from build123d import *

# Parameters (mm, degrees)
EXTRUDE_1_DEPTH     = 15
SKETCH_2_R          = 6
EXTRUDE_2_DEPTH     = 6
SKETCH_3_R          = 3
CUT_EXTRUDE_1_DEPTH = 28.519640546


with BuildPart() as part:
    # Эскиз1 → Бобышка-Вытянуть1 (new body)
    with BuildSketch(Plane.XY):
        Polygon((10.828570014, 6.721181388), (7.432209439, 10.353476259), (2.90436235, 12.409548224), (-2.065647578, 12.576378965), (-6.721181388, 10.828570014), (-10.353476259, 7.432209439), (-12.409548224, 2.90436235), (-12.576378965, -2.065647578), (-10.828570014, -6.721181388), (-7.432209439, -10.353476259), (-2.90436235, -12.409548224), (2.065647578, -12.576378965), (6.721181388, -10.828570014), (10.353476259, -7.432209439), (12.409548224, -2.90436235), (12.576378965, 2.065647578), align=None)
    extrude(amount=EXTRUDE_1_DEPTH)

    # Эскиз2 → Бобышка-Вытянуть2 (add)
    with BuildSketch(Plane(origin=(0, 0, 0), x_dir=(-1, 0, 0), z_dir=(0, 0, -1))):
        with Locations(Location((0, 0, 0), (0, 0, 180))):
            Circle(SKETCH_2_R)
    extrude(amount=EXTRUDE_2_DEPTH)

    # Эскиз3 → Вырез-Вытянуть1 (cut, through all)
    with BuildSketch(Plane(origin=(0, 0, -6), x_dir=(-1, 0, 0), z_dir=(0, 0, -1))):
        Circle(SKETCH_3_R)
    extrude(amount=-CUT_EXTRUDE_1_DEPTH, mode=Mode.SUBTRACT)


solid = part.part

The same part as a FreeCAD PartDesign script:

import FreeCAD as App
import Part
import Sketcher
from FreeCAD import Vector
Q = App.Units.Quantity

doc = App.newDocument("Part")
body = doc.addObject("PartDesign::Body", "Body")

# Sketch on XY plane
sketch1 = body.newObject("Sketcher::SketchObject", "Sketch")
sketch1.AttachmentSupport = (doc.getObject("XY_Plane"), [""])
sketch1.MapMode = "FlatFace"
sketch1.addGeometry(Part.LineSegment(Vector(10.8, 6.7, 0), Vector(7.4, 10.4, 0)), False)
sketch1.addGeometry(Part.LineSegment(Vector(7.4, 10.4, 0), Vector(2.9, 12.4, 0)), False)
sketch1.addGeometry(Part.LineSegment(Vector(2.9, 12.4, 0), Vector(-2.1, 12.6, 0)), False)
sketch1.addGeometry(Part.LineSegment(Vector(-2.1, 12.6, 0), Vector(-6.7, 10.8, 0)), False)
sketch1.addGeometry(Part.LineSegment(Vector(-6.7, 10.8, 0), Vector(-10.4, 7.4, 0)), False)
sketch1.addGeometry(Part.LineSegment(Vector(-10.4, 7.4, 0), Vector(-12.4, 2.9, 0)), False)
sketch1.addGeometry(Part.LineSegment(Vector(-12.4, 2.9, 0), Vector(-12.6, -2.1, 0)), False)
sketch1.addGeometry(Part.LineSegment(Vector(-12.6, -2.1, 0), Vector(-10.8, -6.7, 0)), False)
sketch1.addGeometry(Part.LineSegment(Vector(-10.8, -6.7, 0), Vector(-7.4, -10.4, 0)), False)
sketch1.addGeometry(Part.LineSegment(Vector(-7.4, -10.4, 0), Vector(-2.9, -12.4, 0)), False)
sketch1.addGeometry(Part.LineSegment(Vector(-2.9, -12.4, 0), Vector(2.1, -12.6, 0)), False)
sketch1.addGeometry(Part.LineSegment(Vector(2.1, -12.6, 0), Vector(6.7, -10.8, 0)), False)
sketch1.addGeometry(Part.LineSegment(Vector(6.7, -10.8, 0), Vector(10.4, -7.4, 0)), False)
sketch1.addGeometry(Part.LineSegment(Vector(10.4, -7.4, 0), Vector(12.4, -2.9, 0)), False)
sketch1.addGeometry(Part.LineSegment(Vector(12.4, -2.9, 0), Vector(12.6, 2.1, 0)), False)
sketch1.addGeometry(Part.LineSegment(Vector(12.6, 2.1, 0), Vector(10.8, 6.7, 0)), False)
sketch1.addConstraint(Sketcher.Constraint("Coincident", 0, 2, 1, 1))
sketch1.addConstraint(Sketcher.Constraint("Coincident", 1, 2, 2, 1))
sketch1.addConstraint(Sketcher.Constraint("Coincident", 2, 2, 3, 1))
sketch1.addConstraint(Sketcher.Constraint("Coincident", 3, 2, 4, 1))
sketch1.addConstraint(Sketcher.Constraint("Coincident", 4, 2, 5, 1))
sketch1.addConstraint(Sketcher.Constraint("Coincident", 5, 2, 6, 1))
sketch1.addConstraint(Sketcher.Constraint("Coincident", 6, 2, 7, 1))
sketch1.addConstraint(Sketcher.Constraint("Coincident", 7, 2, 8, 1))
sketch1.addConstraint(Sketcher.Constraint("Coincident", 8, 2, 9, 1))
sketch1.addConstraint(Sketcher.Constraint("Coincident", 9, 2, 10, 1))
sketch1.addConstraint(Sketcher.Constraint("Coincident", 10, 2, 11, 1))
sketch1.addConstraint(Sketcher.Constraint("Coincident", 11, 2, 12, 1))
sketch1.addConstraint(Sketcher.Constraint("Coincident", 12, 2, 13, 1))
sketch1.addConstraint(Sketcher.Constraint("Coincident", 13, 2, 14, 1))
sketch1.addConstraint(Sketcher.Constraint("Coincident", 14, 2, 15, 1))
sketch1.addConstraint(Sketcher.Constraint("Coincident", 15, 2, 0, 1))
sketch1.addConstraint(Sketcher.Constraint("Symmetric", 0, 2, 8, 2, -1, 1))
sketch1.addConstraint(Sketcher.Constraint("Symmetric", 1, 2, 9, 2, -1, 1))
sketch1.addConstraint(Sketcher.Constraint("Symmetric", 2, 2, 10, 2, -1, 1))
sketch1.addConstraint(Sketcher.Constraint("Symmetric", 3, 2, 11, 2, -1, 1))
sketch1.addConstraint(Sketcher.Constraint("Symmetric", 4, 2, 12, 2, -1, 1))
sketch1.addConstraint(Sketcher.Constraint("Symmetric", 5, 2, 13, 2, -1, 1))
sketch1.addConstraint(Sketcher.Constraint("Symmetric", 6, 2, 14, 2, -1, 1))
sketch1.addConstraint(Sketcher.Constraint("Symmetric", 7, 2, 15, 2, -1, 1))
sketch1.addConstraint(Sketcher.Constraint("Perpendicular", 0, 4))
sketch1.addConstraint(Sketcher.Constraint("Perpendicular", 1, 5))
sketch1.addConstraint(Sketcher.Constraint("Perpendicular", 2, 6))
sketch1.addConstraint(Sketcher.Constraint("Perpendicular", 3, 7))
sketch1.addConstraint(Sketcher.Constraint("Equal", 0, 1))
sketch1.addConstraint(Sketcher.Constraint("Equal", 1, 2))
sketch1.addConstraint(Sketcher.Constraint("Equal", 2, 3))
sketch1.addConstraint(Sketcher.Constraint("Equal", 3, 4))
sketch1.addConstraint(Sketcher.Constraint("Equal", 4, 5))
sketch1.addConstraint(Sketcher.Constraint("Equal", 5, 6))
sketch1.addConstraint(Sketcher.Constraint("Equal", 6, 7))
sketch1.addConstraint(Sketcher.Constraint("DistanceX", 5, 2, 2, 2, Q("10.343901 mm")))
sketch1.addConstraint(Sketcher.Constraint("Distance", 0, Q("4.972809 mm")))
sketch1.addConstraint(Sketcher.Constraint("DistanceX", -1, 1, 0, 2, Q("7.432209 mm")))
sketch1.addConstraint(Sketcher.Constraint("DistanceY", -1, 1, 1, 2, Q("12.409548 mm")))
sketch1.addConstraint(Sketcher.Constraint("DistanceY", -1, 1, 2, 2, Q("12.576379 mm")))
pad1 = body.newObject("PartDesign::Pad", "Pad")
pad1.Profile = sketch1
pad1.Length = 15

# Sketch on XY plane
sketch2 = body.newObject("Sketcher::SketchObject", "Sketch001")
sketch2.AttachmentSupport = (doc.getObject("XY_Plane"), [""])
sketch2.MapMode = "FlatFace"
sketch2.addGeometry(Part.Circle(Vector(0, 0, 0), Vector(0, 0, 1), 6), False)
sketch2.addConstraint(Sketcher.Constraint("Coincident", 0, 3, -1, 1))
sketch2.addConstraint(Sketcher.Constraint("Diameter", 0, Q("12 mm")))
pad2 = body.newObject("PartDesign::Pad", "Pad001")
pad2.Profile = sketch2
pad2.Length = 6
pad2.Reversed = True

# Sketch on XY plane
sketch3 = body.newObject("Sketcher::SketchObject", "Sketch002")
sketch3.AttachmentSupport = (doc.getObject("XY_Plane"), [""])
sketch3.MapMode = "FlatFace"
sketch3.AttachmentOffset = App.Placement(Vector(0, 0, -6), App.Rotation())
sketch3.addGeometry(Part.Circle(Vector(0, 0, 0), Vector(0, 0, 1), 3), False)
sketch3.addConstraint(Sketcher.Constraint("Coincident", 0, 3, -1, 1))
sketch3.addConstraint(Sketcher.Constraint("Diameter", 0, Q("6 mm")))
pocket1 = body.newObject("PartDesign::Pocket", "Pocket")
pocket1.Profile = sketch3
pocket1.Type = "ThroughAll"
pocket1.Reversed = True

doc.recompute()
